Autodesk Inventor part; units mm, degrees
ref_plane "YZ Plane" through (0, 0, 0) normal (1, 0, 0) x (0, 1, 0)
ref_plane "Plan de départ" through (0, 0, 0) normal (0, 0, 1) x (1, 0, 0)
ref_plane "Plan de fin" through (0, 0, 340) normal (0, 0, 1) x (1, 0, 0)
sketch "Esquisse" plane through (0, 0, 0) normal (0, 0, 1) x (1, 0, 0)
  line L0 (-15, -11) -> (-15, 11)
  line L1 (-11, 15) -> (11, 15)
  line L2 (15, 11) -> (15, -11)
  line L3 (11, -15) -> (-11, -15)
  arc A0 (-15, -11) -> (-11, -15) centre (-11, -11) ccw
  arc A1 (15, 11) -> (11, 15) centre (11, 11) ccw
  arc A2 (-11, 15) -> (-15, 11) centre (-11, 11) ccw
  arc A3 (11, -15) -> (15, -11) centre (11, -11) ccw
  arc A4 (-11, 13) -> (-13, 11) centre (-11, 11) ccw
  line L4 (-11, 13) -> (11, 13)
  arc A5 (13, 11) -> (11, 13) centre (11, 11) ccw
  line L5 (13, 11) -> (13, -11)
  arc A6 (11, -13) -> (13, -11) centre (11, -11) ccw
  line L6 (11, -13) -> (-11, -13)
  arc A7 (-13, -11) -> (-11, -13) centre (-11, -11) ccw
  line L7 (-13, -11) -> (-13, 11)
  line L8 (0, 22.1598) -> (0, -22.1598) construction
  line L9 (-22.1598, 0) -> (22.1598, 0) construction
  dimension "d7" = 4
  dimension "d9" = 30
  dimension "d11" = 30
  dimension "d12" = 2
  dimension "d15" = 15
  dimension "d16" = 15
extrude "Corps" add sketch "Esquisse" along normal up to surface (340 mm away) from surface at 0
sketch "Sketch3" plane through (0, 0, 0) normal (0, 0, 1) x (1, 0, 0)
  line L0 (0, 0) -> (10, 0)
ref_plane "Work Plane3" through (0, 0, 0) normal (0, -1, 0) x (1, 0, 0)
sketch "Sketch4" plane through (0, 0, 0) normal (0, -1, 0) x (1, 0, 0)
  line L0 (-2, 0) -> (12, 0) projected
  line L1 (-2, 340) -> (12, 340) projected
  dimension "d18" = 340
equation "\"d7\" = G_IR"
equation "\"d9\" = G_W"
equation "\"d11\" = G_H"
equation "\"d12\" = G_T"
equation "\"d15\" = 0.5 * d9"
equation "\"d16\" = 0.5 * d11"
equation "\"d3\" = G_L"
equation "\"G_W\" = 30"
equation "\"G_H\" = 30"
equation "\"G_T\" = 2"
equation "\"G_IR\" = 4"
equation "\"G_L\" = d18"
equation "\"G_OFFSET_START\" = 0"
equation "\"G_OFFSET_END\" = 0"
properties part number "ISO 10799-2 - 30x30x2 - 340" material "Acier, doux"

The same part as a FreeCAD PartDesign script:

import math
import FreeCAD as App
import Part
import Sketcher
from FreeCAD import Vector
Q = App.Units.Quantity

doc = App.newDocument("Part")
body = doc.addObject("PartDesign::Body", "Body")

# Sketch on XY plane
sketch1 = doc.addObject("Sketcher::SketchObject", "Sketch")
body.addObject(sketch1)
sketch1.AttachmentSupport = (doc.XY_Plane, [""])
sketch1.MapMode = "FlatFace"
sketch1.addGeometry(Part.LineSegment(Vector(-15, 11, 0), Vector(-15, -11, 0)), False)
sketch1.addGeometry(Part.ArcOfCircle(Part.Circle(Vector(-11, -11, 0), Vector(0, 0, 1), 4), math.radians(180), math.radians(270)), False)
sketch1.addGeometry(Part.LineSegment(Vector(-11, -15, 0), Vector(11, -15, 0)), False)
sketch1.addGeometry(Part.ArcOfCircle(Part.Circle(Vector(11, -11, 0), Vector(0, 0, 1), 4), math.radians(-90), math.radians(0)), False)
sketch1.addGeometry(Part.LineSegment(Vector(15, -11, 0), Vector(15, 11, 0)), False)
sketch1.addGeometry(Part.ArcOfCircle(Part.Circle(Vector(11, 11, 0), Vector(0, 0, 1), 4), math.radians(0), math.radians(90)), False)
sketch1.addGeometry(Part.LineSegment(Vector(11, 15, 0), Vector(-11, 15, 0)), False)
sketch1.addGeometry(Part.ArcOfCircle(Part.Circle(Vector(-11, 11, 0), Vector(0, 0, 1), 4), math.radians(90), math.radians(180)), False)
sketch1.addGeometry(Part.ArcOfCircle(Part.Circle(Vector(-11, 11, 0), Vector(0, 0, 1), 2), math.radians(90), math.radians(180)), False)
sketch1.addGeometry(Part.LineSegment(Vector(-11, 13, 0), Vector(11, 13, 0)), False)
sketch1.addGeometry(Part.ArcOfCircle(Part.Circle(Vector(11, 11, 0), Vector(0, 0, 1), 2), math.radians(0), math.radians(90)), False)
sketch1.addGeometry(Part.LineSegment(Vector(13, 11, 0), Vector(13, -11, 0)), False)
sketch1.addGeometry(Part.ArcOfCircle(Part.Circle(Vector(11, -11, 0), Vector(0, 0, 1), 2), math.radians(-90), math.radians(0)), False)
sketch1.addGeometry(Part.LineSegment(Vector(11, -13, 0), Vector(-11, -13, 0)), False)
sketch1.addGeometry(Part.ArcOfCircle(Part.Circle(Vector(-11, -11, 0), Vector(0, 0, 1), 2), math.radians(180), math.radians(270)), False)
sketch1.addGeometry(Part.LineSegment(Vector(-13, -11, 0), Vector(-13, 11, 0)), False)
sketch1.addConstraint(Sketcher.Constraint("Tangent", 0, 2, 1, 1))
sketch1.addConstraint(Sketcher.Constraint("Tangent", 1, 2, 2, 1))
sketch1.addConstraint(Sketcher.Constraint("Tangent", 2, 2, 3, 1))
sketch1.addConstraint(Sketcher.Constraint("Tangent", 3, 2, 4, 1))
sketch1.addConstraint(Sketcher.Constraint("Tangent", 4, 2, 5, 1))
sketch1.addConstraint(Sketcher.Constraint("Tangent", 5, 2, 6, 1))
sketch1.addConstraint(Sketcher.Constraint("Tangent", 6, 2, 7, 1))
sketch1.addConstraint(Sketcher.Constraint("Tangent", 7, 2, 0, 1))
sketch1.addConstraint(Sketcher.Constraint("Tangent", 8, 1, 9, 1))
sketch1.addConstraint(Sketcher.Constraint("Tangent", 9, 2, 10, 2))
sketch1.addConstraint(Sketcher.Constraint("Tangent", 10, 1, 11, 1))
sketch1.addConstraint(Sketcher.Constraint("Tangent", 11, 2, 12, 2))
sketch1.addConstraint(Sketcher.Constraint("Tangent", 12, 1, 13, 1))
sketch1.addConstraint(Sketcher.Constraint("Tangent", 13, 2, 14, 2))
sketch1.addConstraint(Sketcher.Constraint("Tangent", 14, 1, 15, 1))
sketch1.addConstraint(Sketcher.Constraint("Tangent", 15, 2, 8, 2))
sketch1.addConstraint(Sketcher.Constraint("Vertical", 0))
sketch1.addConstraint(Sketcher.Constraint("Horizontal", 2))
sketch1.addConstraint(Sketcher.Constraint("Vertical", 4))
sketch1.addConstraint(Sketcher.Constraint("Horizontal", 6))
sketch1.addConstraint(Sketcher.Constraint("Horizontal", 9))
sketch1.addConstraint(Sketcher.Constraint("Vertical", 11))
sketch1.addConstraint(Sketcher.Constraint("Horizontal", 13))
sketch1.addConstraint(Sketcher.Constraint("Vertical", 15))
sketch1.addConstraint(Sketcher.Constraint("Coincident", 8, 3, 7, 3))
sketch1.addConstraint(Sketcher.Constraint("Coincident", 10, 3, 5, 3))
sketch1.addConstraint(Sketcher.Constraint("Coincident", 12, 3, 3, 3))
sketch1.addConstraint(Sketcher.Constraint("Equal", 1, 3))
sketch1.addConstraint(Sketcher.Constraint("Equal", 3, 5))
sketch1.addConstraint(Sketcher.Constraint("Equal", 5, 7))
sketch1.addConstraint(Sketcher.Constraint("Equal", 12, 14))
sketch1.addConstraint(Sketcher.Constraint("Symmetric", 1, 3, 5, 3, -1, 1))
sketch1.addConstraint(Sketcher.Constraint("Equal", 13, 0))
sketch1.addConstraint(Sketcher.Constraint("Radius", 1, Q("4 mm")))
sketch1.addConstraint(Sketcher.Constraint("Radius", 8, Q("2 mm")))
sketch1.addConstraint(Sketcher.Constraint("DistanceX", 0, 2, -1, 1, Q("15 mm")))
pad1 = doc.addObject("PartDesign::Pad", "Pad")
body.addObject(pad1)
pad1.Profile = sketch1
pad1.Length = 340

doc.recompute()
